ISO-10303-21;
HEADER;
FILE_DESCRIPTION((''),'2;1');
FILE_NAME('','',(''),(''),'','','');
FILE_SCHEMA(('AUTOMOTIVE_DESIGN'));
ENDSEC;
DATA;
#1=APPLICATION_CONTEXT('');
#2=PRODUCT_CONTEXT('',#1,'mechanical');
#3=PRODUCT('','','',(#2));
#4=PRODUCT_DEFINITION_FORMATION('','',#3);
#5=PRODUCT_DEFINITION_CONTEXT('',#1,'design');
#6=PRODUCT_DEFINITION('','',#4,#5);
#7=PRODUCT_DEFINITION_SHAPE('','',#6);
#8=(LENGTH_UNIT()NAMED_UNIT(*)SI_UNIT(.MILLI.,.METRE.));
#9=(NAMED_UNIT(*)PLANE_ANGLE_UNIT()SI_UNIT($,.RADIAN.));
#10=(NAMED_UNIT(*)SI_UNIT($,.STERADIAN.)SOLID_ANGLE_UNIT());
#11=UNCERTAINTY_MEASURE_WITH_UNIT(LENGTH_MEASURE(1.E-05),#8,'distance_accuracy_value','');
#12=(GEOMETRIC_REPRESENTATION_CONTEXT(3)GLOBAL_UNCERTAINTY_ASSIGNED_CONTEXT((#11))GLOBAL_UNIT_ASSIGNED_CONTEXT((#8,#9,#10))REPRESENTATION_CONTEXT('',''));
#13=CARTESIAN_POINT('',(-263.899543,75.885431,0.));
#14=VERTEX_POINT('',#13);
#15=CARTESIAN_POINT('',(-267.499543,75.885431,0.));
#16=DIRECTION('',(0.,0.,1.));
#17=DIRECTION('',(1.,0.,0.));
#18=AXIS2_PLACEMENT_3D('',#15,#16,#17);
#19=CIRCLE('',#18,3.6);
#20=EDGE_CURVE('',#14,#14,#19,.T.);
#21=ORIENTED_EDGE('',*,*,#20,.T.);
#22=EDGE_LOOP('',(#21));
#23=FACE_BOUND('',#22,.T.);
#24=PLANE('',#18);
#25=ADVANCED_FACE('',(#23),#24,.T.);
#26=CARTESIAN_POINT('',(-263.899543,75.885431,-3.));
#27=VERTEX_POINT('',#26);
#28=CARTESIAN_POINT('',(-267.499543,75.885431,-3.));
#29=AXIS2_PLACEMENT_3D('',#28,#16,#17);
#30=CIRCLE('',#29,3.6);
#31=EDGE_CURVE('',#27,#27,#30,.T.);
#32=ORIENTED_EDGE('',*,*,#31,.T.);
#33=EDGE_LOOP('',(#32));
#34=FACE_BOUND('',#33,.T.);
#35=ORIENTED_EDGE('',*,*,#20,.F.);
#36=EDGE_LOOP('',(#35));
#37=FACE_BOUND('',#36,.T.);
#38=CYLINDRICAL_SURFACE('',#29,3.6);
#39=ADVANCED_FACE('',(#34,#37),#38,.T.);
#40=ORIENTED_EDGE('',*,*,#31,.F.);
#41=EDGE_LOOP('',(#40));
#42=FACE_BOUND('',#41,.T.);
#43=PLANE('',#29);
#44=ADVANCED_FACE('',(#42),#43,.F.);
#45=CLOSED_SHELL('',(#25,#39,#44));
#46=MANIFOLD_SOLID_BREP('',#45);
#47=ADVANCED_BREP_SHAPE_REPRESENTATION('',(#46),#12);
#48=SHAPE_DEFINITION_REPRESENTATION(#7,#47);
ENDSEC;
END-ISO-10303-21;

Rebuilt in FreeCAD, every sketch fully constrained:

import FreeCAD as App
import Part
import Sketcher

V = App.Vector

doc = App.newDocument("Part")
params = doc.addObject("Spreadsheet::Sheet", "Params")
for row, (alias, value) in enumerate([
    ("sketch1_diameter", "7.2 mm"),
    ("pad1_length", "3 mm"),
], start=1):
    params.set(f"A{row}", alias)
    params.set(f"B{row}", "=" + value)
    params.setAlias(f"B{row}", alias)

body = doc.addObject("PartDesign::Body", "Body")

# Sketch on XY plane
sketch1 = body.newObject("Sketcher::SketchObject", "Sketch")
sketch1.AttachmentSupport = (doc.getObject("XY_Plane"), [""])
sketch1.MapMode = "FlatFace"
sketch1.addGeometry(Part.Circle(V(-267.499543, 75.885431, 0), V(0, 0, 1), 3.6), False)
sketch1.addConstraint(Sketcher.Constraint("Diameter", 0, 7.2))
sketch1.addConstraint(Sketcher.Constraint("DistanceY", -1, 1, 0, 3, 75.885431))
sketch1.addConstraint(Sketcher.Constraint("DistanceX", 0, 3, -1, 1, 267.499543))
sketch1.setExpression("Constraints[0]", "Params.sketch1_diameter")
pad1 = body.newObject("PartDesign::Pad", "Pad")
pad1.Profile = sketch1
pad1.setExpression("Length", "Params.pad1_length")
pad1.Reversed = True

doc.recompute()
